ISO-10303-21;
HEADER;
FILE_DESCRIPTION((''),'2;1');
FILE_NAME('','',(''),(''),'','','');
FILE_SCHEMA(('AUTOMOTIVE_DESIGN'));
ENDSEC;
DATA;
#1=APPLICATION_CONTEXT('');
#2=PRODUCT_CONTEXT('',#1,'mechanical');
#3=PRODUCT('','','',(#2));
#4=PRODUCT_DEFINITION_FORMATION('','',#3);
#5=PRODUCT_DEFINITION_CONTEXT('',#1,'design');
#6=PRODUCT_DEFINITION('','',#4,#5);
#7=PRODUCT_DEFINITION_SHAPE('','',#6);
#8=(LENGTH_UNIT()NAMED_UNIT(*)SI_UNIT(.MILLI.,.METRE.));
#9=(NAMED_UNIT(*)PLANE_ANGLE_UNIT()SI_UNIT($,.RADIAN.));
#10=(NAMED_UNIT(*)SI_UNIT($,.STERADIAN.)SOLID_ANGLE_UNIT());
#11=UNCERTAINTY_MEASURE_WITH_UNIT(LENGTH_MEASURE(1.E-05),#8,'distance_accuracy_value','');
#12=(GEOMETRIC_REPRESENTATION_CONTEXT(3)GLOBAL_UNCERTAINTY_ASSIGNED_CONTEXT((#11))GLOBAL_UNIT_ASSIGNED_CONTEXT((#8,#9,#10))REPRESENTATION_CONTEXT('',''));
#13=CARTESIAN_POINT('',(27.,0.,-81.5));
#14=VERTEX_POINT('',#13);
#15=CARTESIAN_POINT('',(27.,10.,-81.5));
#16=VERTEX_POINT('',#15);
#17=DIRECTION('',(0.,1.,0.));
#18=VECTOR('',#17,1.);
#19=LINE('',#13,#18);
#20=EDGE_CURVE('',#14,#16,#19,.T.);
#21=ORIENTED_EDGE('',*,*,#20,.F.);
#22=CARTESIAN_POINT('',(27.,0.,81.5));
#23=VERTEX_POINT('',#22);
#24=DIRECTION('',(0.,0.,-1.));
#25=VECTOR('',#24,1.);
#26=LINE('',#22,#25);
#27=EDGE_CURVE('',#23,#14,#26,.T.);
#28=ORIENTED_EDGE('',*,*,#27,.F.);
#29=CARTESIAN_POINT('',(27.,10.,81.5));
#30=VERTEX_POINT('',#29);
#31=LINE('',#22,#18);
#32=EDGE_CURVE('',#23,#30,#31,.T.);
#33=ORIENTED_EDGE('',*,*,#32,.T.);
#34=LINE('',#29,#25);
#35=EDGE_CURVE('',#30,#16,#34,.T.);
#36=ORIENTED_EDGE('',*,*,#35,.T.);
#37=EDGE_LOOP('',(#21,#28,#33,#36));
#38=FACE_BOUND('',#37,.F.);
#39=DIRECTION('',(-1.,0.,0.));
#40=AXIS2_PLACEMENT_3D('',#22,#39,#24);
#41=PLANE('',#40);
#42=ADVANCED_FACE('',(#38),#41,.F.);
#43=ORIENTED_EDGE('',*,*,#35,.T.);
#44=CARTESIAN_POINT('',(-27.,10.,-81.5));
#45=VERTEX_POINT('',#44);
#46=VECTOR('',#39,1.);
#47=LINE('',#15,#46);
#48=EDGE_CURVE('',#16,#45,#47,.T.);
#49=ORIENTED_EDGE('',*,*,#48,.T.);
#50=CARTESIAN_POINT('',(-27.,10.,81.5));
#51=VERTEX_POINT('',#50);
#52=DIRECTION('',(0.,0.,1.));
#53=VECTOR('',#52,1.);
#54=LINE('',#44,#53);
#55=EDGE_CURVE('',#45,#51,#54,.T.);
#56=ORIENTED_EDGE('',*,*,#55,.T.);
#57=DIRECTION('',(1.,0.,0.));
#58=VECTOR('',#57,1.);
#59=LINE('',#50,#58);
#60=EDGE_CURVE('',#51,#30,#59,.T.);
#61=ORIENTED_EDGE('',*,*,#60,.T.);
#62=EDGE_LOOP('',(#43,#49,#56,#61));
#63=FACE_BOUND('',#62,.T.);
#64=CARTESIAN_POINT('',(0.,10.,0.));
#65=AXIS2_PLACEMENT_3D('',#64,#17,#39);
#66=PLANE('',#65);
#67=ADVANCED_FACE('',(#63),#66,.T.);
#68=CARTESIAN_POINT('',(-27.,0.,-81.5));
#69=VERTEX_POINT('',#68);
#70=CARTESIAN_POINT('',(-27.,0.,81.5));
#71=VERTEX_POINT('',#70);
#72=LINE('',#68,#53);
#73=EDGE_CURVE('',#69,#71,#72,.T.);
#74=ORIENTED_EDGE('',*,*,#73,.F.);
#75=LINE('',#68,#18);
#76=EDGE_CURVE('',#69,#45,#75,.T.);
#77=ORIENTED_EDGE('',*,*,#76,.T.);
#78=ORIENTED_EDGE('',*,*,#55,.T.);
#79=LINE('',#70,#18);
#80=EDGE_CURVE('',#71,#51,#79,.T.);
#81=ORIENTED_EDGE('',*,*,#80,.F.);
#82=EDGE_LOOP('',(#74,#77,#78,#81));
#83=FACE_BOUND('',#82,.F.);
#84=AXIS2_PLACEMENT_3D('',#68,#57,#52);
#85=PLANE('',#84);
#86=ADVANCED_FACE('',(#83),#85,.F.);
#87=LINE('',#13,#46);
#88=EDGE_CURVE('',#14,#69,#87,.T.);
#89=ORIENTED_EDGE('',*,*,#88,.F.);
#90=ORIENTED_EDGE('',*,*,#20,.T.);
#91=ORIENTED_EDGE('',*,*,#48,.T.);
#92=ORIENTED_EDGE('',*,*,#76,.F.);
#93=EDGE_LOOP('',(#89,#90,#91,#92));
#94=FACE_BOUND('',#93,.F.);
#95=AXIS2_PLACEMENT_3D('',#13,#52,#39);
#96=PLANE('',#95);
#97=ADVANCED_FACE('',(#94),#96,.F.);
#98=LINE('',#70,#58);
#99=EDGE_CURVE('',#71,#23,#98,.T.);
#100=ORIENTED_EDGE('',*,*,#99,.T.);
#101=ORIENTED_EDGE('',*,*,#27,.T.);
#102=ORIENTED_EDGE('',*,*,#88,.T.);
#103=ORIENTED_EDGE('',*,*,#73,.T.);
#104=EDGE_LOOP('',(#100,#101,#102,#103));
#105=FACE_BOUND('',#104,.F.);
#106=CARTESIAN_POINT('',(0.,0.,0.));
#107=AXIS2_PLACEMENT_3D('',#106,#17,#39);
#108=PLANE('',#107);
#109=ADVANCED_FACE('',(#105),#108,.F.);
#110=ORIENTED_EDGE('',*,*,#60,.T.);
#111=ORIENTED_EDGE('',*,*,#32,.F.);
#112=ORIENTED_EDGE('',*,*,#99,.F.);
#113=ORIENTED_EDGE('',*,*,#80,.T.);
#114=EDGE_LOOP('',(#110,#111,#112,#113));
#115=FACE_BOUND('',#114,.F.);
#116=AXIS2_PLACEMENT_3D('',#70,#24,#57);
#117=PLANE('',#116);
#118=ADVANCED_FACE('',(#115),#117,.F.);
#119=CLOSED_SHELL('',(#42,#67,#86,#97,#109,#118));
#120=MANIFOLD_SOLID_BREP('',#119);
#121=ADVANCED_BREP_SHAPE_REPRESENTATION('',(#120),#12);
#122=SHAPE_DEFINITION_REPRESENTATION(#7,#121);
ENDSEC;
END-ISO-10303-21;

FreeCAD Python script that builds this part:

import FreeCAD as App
import Part
import Sketcher
Q = App.Units.Quantity

doc = App.newDocument("Part")
body = doc.addObject("PartDesign::Body", "Body")

sketch1 = body.newObject("Sketcher::SketchObject", "Sketch")
sketch1.AttachmentSupport = (doc.getObject("XZ_Plane"), [""])
sketch1.MapMode = "FlatFace"
sketch1.addGeometry([
    Part.LineSegment(App.Vector(-27, -82, 0), App.Vector(-27, 82, 0)),
    Part.LineSegment(App.Vector(-27, 82, 0), App.Vector(27, 82, 0)),
    Part.LineSegment(App.Vector(27, 82, 0), App.Vector(27, -82, 0)),
    Part.LineSegment(App.Vector(27, -82, 0), App.Vector(-27, -82, 0)),
], False)
sketch1.addConstraint([
    Sketcher.Constraint("Coincident", 0, 2, 1, 1),
    Sketcher.Constraint("Coincident", 1, 2, 2, 1),
    Sketcher.Constraint("Coincident", 2, 2, 3, 1),
    Sketcher.Constraint("Coincident", 3, 2, 0, 1),
    Sketcher.Constraint("Vertical", 0),
    Sketcher.Constraint("Horizontal", 1),
    Sketcher.Constraint("Vertical", 2),
    Sketcher.Constraint("Horizontal", 3),
    Sketcher.Constraint("Symmetric", 0, 2, 2, 2, -1, 1),
    Sketcher.Constraint("DistanceX", 1, 1, 1, 2, Q("54 mm")),
    Sketcher.Constraint("DistanceY", 0, 1, 0, 2, Q("163 mm")),
])
pad1 = body.newObject("PartDesign::Pad", "Pad")
pad1.Profile = sketch1
pad1.Length = 10
pad1.Reversed = True

doc.recompute()
